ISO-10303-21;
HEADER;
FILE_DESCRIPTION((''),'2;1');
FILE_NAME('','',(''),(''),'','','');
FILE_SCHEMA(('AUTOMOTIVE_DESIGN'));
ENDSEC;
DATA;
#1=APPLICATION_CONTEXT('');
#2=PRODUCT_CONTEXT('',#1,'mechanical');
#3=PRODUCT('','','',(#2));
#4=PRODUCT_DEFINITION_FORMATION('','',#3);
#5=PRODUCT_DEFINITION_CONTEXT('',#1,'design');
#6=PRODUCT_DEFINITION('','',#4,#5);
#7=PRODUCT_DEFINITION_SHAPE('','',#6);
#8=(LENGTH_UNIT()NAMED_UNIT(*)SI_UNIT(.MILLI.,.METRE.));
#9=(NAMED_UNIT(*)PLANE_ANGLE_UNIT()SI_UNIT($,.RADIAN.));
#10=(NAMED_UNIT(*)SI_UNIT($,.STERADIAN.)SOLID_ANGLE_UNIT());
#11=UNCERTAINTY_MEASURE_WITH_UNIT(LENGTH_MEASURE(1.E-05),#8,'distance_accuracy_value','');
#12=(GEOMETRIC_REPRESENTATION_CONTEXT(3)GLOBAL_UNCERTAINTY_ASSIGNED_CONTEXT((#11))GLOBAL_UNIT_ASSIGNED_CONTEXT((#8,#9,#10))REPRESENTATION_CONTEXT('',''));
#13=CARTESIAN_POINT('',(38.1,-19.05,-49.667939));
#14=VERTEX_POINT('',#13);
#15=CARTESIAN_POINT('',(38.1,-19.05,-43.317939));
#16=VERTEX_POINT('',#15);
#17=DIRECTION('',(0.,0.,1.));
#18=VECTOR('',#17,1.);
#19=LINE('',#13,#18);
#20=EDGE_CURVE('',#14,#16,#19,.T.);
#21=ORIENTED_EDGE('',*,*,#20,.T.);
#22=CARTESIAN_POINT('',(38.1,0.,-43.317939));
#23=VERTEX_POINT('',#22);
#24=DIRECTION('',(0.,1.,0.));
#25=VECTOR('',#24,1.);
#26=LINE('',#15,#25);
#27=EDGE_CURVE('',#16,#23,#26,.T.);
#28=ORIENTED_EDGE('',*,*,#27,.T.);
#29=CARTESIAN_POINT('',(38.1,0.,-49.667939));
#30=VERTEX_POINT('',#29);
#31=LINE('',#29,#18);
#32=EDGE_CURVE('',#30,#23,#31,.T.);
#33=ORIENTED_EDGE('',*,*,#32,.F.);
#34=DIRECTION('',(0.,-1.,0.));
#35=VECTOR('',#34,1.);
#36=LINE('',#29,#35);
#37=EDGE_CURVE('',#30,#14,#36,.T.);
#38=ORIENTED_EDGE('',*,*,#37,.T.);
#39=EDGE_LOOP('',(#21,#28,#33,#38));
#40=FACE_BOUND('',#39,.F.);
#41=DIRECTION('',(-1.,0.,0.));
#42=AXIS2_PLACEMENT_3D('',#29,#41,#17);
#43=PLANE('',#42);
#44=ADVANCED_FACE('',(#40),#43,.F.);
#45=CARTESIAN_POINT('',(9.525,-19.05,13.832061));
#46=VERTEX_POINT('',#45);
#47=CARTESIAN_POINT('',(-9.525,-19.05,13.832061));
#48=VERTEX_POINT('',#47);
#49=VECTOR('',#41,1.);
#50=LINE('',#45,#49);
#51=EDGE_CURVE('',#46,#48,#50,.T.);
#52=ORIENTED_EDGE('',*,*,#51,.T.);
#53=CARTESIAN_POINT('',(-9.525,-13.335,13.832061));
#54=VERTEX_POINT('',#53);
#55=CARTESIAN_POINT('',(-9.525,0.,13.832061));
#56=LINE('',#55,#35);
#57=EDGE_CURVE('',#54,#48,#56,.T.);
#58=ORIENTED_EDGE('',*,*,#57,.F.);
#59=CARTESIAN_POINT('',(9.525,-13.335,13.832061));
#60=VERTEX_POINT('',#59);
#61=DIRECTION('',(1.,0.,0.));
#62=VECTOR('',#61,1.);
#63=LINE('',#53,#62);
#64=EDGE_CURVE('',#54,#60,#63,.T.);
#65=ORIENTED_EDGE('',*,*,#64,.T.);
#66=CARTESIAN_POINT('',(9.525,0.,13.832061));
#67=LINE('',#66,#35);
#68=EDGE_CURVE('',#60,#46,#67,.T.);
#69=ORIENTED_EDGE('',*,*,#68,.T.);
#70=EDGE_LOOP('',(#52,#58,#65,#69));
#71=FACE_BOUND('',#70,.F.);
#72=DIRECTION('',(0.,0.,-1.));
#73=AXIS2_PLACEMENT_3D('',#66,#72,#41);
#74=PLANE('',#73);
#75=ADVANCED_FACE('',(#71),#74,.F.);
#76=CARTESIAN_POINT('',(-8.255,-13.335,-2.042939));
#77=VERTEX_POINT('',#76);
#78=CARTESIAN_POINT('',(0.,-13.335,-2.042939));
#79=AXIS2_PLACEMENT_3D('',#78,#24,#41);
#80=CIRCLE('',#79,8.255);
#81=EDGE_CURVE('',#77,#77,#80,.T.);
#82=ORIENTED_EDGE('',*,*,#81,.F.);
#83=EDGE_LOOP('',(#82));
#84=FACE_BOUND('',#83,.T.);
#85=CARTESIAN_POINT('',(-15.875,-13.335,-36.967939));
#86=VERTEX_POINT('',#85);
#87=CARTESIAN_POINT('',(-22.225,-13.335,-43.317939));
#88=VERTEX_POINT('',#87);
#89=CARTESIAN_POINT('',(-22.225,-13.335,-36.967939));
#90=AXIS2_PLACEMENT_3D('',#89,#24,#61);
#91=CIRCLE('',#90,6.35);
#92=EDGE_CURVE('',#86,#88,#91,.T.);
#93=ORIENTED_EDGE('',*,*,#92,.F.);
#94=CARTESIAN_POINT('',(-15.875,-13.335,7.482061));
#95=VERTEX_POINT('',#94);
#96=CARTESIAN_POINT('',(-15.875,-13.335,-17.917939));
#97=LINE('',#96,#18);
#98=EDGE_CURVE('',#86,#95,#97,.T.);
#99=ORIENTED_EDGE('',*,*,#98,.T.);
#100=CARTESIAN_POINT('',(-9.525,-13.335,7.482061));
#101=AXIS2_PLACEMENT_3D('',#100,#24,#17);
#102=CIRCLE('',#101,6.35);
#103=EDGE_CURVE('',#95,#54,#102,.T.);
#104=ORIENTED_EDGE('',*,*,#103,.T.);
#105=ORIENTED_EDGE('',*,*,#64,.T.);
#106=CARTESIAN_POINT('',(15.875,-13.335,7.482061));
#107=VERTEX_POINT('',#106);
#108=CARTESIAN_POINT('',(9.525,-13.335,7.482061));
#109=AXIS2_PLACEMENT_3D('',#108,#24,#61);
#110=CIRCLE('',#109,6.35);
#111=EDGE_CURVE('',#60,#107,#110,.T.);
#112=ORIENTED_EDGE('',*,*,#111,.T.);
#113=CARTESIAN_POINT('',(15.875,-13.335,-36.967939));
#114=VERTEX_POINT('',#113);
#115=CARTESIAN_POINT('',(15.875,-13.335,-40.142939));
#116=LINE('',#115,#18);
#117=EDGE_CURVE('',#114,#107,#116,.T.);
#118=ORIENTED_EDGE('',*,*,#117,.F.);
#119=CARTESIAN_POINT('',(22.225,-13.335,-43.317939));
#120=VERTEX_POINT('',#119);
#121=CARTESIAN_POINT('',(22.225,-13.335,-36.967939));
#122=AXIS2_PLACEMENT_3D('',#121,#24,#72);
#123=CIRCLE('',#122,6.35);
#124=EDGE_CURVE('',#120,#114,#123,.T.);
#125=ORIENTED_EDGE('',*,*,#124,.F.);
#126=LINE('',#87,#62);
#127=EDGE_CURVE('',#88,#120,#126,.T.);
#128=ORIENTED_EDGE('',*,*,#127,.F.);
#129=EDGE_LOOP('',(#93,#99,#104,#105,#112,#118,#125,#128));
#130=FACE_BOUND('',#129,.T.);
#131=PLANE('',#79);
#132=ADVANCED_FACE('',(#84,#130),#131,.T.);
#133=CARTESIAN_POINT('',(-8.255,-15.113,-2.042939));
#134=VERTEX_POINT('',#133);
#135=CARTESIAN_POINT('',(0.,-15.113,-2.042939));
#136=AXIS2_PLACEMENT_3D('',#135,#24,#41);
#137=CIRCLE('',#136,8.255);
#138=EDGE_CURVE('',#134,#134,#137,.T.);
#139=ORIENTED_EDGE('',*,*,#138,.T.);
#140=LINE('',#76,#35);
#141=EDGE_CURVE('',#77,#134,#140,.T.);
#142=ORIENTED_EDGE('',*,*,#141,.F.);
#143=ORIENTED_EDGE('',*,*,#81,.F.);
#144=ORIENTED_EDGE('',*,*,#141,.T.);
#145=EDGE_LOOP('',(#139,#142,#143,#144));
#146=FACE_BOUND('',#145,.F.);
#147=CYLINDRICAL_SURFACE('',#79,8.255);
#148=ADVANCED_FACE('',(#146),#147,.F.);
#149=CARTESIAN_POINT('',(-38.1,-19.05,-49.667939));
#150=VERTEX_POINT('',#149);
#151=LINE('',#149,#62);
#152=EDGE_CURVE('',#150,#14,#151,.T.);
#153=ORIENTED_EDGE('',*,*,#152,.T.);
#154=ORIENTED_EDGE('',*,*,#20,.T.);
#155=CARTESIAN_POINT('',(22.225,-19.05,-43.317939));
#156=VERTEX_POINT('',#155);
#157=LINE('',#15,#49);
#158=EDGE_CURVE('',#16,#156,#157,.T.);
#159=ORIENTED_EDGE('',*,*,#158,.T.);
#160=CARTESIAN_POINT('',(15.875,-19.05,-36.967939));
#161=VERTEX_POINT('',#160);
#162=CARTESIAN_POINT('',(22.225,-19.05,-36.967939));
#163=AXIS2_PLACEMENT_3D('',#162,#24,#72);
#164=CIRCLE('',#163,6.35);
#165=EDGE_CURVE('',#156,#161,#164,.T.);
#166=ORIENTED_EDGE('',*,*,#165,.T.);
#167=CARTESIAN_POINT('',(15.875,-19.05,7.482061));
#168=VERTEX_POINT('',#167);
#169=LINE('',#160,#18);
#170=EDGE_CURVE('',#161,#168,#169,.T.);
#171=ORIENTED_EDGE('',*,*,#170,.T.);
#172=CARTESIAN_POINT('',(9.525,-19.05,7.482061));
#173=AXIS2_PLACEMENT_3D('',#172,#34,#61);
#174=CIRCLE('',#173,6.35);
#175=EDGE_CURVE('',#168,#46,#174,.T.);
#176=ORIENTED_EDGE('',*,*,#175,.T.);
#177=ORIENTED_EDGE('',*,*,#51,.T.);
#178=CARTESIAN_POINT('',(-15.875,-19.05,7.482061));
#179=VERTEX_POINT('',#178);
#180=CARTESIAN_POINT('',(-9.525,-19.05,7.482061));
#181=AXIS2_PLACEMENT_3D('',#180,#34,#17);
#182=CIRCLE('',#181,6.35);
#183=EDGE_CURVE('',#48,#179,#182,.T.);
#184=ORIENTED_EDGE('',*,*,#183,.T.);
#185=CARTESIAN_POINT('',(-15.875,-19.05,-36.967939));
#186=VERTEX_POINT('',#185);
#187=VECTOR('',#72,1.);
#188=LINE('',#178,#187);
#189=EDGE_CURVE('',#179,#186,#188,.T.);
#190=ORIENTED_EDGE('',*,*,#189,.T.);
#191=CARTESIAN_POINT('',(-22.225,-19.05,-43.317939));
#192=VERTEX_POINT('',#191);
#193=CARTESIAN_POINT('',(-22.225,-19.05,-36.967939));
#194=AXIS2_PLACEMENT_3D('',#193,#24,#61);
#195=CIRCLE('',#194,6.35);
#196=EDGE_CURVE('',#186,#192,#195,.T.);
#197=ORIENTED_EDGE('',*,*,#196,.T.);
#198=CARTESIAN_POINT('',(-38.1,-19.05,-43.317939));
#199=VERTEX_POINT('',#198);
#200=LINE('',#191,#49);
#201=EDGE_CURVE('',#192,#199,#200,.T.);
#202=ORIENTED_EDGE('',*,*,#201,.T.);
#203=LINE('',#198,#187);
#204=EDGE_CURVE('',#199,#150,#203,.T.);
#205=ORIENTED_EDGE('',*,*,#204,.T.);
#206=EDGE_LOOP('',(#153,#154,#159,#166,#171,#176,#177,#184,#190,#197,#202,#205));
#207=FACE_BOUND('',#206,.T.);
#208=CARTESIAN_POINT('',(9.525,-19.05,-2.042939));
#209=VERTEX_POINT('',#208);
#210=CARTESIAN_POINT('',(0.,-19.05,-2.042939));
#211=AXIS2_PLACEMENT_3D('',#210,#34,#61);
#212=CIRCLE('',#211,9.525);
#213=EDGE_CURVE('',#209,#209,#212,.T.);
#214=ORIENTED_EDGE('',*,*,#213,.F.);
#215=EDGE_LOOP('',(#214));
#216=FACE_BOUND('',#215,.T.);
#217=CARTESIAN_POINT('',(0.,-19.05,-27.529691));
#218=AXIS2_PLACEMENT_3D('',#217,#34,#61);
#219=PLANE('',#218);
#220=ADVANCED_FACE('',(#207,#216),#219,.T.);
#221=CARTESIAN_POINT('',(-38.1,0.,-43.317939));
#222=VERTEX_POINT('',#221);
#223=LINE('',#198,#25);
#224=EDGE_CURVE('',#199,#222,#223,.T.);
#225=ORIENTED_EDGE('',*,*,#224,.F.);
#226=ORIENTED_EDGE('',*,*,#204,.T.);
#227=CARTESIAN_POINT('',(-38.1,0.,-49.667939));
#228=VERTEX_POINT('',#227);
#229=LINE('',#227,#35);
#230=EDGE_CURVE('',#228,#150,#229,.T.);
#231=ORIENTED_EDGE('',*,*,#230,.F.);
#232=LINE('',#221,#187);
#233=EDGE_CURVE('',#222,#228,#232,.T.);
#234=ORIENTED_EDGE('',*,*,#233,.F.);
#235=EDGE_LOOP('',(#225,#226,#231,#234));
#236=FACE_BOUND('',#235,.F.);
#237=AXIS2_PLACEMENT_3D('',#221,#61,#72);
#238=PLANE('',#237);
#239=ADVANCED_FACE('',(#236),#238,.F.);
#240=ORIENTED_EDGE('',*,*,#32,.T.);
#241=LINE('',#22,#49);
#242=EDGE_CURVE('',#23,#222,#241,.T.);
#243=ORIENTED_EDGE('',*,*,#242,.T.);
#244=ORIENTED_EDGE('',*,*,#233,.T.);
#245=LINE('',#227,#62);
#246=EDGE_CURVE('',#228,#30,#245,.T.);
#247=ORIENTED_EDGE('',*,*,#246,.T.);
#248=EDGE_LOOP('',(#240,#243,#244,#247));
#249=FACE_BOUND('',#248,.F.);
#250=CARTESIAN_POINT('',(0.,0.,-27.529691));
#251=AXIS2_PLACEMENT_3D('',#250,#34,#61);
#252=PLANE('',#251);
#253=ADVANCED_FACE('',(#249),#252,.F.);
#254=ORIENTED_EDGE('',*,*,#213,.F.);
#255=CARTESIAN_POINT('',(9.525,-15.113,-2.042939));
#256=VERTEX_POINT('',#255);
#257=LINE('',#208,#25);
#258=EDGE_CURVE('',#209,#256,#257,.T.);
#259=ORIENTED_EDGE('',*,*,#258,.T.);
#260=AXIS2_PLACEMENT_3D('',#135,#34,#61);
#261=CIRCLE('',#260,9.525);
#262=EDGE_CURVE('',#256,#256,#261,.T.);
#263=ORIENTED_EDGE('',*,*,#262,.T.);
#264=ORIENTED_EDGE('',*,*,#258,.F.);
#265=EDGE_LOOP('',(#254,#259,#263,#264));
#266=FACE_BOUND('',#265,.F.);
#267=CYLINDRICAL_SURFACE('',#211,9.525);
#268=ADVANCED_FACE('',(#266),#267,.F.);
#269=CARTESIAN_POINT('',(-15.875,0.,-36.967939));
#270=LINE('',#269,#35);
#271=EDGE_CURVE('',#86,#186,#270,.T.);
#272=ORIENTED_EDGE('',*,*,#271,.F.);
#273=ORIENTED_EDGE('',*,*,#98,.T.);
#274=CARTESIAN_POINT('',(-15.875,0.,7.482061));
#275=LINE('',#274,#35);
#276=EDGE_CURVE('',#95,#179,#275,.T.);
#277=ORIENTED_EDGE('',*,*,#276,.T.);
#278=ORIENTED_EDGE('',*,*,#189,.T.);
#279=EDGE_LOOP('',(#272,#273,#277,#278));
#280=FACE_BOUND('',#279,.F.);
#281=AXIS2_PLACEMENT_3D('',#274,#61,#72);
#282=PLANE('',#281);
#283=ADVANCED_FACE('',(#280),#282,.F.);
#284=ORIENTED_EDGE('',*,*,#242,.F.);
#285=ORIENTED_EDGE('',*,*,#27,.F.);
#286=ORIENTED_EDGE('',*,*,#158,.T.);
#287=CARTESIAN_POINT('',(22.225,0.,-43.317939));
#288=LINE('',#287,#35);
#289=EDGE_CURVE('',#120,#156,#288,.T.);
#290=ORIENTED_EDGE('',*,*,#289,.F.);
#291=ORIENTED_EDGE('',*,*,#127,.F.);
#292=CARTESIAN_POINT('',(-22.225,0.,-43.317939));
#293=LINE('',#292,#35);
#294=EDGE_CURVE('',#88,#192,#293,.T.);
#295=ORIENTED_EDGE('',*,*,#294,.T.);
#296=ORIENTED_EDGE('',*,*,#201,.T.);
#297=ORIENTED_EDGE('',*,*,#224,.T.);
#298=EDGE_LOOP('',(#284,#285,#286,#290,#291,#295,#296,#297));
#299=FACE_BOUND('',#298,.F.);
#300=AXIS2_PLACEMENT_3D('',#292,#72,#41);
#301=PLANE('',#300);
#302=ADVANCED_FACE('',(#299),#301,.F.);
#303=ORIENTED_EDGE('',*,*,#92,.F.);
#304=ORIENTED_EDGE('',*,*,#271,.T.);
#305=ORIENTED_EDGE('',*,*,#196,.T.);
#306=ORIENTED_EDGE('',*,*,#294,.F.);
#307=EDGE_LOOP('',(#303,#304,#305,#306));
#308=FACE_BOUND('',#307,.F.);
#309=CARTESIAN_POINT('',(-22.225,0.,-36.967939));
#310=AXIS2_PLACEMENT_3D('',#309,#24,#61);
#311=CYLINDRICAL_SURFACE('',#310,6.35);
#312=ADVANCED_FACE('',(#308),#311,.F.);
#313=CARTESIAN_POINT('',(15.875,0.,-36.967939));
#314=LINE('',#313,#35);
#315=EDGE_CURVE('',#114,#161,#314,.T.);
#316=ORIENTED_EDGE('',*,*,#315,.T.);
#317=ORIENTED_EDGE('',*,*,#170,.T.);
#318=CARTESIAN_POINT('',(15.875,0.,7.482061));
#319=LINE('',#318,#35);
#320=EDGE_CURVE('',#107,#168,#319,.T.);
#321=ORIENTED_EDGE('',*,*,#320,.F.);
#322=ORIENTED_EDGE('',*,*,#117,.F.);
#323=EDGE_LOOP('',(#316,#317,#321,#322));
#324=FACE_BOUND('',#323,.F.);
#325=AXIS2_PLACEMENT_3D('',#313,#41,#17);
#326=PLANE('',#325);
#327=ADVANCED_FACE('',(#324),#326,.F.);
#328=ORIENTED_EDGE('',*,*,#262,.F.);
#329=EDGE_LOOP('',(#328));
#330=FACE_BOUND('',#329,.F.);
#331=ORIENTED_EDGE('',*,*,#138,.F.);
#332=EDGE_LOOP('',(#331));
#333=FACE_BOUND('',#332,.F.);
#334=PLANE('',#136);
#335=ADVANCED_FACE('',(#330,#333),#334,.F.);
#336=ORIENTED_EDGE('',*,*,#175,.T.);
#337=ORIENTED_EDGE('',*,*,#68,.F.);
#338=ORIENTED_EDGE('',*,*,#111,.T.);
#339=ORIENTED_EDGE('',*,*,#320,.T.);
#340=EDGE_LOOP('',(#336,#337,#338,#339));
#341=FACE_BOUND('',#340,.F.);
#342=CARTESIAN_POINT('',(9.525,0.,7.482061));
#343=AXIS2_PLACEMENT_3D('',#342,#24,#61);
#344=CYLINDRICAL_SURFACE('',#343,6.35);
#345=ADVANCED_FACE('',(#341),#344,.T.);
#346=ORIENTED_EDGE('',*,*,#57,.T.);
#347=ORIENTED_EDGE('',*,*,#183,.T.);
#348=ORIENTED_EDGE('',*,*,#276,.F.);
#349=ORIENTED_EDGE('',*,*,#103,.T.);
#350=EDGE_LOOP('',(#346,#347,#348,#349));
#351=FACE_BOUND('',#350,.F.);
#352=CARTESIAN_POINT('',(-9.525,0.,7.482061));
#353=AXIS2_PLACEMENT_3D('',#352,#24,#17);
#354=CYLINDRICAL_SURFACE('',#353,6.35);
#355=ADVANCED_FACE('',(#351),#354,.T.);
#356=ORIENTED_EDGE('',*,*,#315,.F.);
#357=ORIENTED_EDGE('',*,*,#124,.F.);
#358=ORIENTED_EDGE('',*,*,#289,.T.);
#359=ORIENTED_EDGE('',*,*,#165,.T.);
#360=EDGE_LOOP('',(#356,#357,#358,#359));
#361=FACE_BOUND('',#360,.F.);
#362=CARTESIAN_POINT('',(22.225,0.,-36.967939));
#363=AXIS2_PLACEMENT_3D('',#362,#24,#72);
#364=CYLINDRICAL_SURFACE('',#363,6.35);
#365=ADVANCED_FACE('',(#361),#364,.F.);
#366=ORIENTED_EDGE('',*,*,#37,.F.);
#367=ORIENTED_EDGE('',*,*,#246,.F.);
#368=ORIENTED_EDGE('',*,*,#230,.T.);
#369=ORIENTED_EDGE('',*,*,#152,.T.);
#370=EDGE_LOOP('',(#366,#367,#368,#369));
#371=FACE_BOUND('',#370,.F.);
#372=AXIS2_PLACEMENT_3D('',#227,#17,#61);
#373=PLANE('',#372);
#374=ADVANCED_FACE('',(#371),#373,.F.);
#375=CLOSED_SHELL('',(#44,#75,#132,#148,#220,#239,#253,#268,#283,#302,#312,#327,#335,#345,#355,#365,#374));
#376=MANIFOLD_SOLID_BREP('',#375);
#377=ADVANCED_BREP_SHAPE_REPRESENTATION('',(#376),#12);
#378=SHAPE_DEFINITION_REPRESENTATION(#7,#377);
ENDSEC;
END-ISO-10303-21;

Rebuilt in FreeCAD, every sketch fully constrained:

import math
import FreeCAD as App
import Part
import Sketcher
Q = App.Units.Quantity


def add_polygon(sketch, points):
    """Adds a closed chain of lines whose ends are joined by coincident constraints."""
    first, n = sketch.GeometryCount, len(points)
    for a, b in zip(points, points[1:] + points[:1]):
        sketch.addGeometry(Part.LineSegment(App.Vector(*a, 0), App.Vector(*b, 0)), False)
    for i in range(n):
        sketch.addConstraint(Sketcher.Constraint("Coincident", first + i, 2, first + (i + 1) % n, 1))

doc = App.newDocument("Part")
body = doc.addObject("PartDesign::Body", "Body")

sketch1 = body.newObject("Sketcher::SketchObject", "Sketch")
sketch1.AttachmentSupport = (doc.getObject("XZ_Plane"), [""])
sketch1.MapMode = "FlatFace"
sketch1.addGeometry(Part.LineSegment(App.Vector(-38.1, -43.317939, 0), App.Vector(-38.1, -49.667939, 0)), False)
sketch1.addGeometry(Part.LineSegment(App.Vector(-38.1, -49.667939, 0), App.Vector(38.1, -49.667939, 0)), False)
sketch1.addGeometry(Part.LineSegment(App.Vector(38.1, -49.667939, 0), App.Vector(38.1, -43.317939, 0)), False)
sketch1.addGeometry(Part.LineSegment(App.Vector(38.1, -43.317939, 0), App.Vector(22.225, -43.317939, 0)), False)
sketch1.addGeometry(Part.ArcOfCircle(Part.Circle(App.Vector(22.225, -36.967939, 0), App.Vector(0, 0, 1), 6.35), math.radians(180), math.radians(270)), False)
sketch1.addGeometry(Part.LineSegment(App.Vector(15.875, -36.967939, 0), App.Vector(15.875, 7.482061, 0)), False)
sketch1.addGeometry(Part.ArcOfCircle(Part.Circle(App.Vector(9.525, 7.482061, 0), App.Vector(0, 0, 1), 6.35), math.radians(0), math.radians(90)), False)
sketch1.addGeometry(Part.LineSegment(App.Vector(9.525, 13.832061, 0), App.Vector(-9.525, 13.832061, 0)), False)
sketch1.addGeometry(Part.ArcOfCircle(Part.Circle(App.Vector(-9.525, 7.482061, 0), App.Vector(0, 0, 1), 6.35), math.radians(90), math.radians(180)), False)
sketch1.addGeometry(Part.LineSegment(App.Vector(-15.875, 7.482061, 0), App.Vector(-15.875, -36.967939, 0)), False)
sketch1.addGeometry(Part.ArcOfCircle(Part.Circle(App.Vector(-22.225, -36.967939, 0), App.Vector(0, 0, 1), 6.35), math.radians(-90), math.radians(0)), False)
sketch1.addGeometry(Part.LineSegment(App.Vector(-22.225, -43.317939, 0), App.Vector(-38.1, -43.317939, 0)), False)
sketch1.addConstraint(Sketcher.Constraint("Coincident", 0, 2, 1, 1))
sketch1.addConstraint(Sketcher.Constraint("Coincident", 1, 2, 2, 1))
sketch1.addConstraint(Sketcher.Constraint("Coincident", 2, 2, 3, 1))
sketch1.addConstraint(Sketcher.Constraint("Tangent", 3, 2, 4, 2))
sketch1.addConstraint(Sketcher.Constraint("Tangent", 4, 1, 5, 1))
sketch1.addConstraint(Sketcher.Constraint("Tangent", 5, 2, 6, 1))
sketch1.addConstraint(Sketcher.Constraint("Tangent", 6, 2, 7, 1))
sketch1.addConstraint(Sketcher.Constraint("Tangent", 7, 2, 8, 1))
sketch1.addConstraint(Sketcher.Constraint("Tangent", 8, 2, 9, 1))
sketch1.addConstraint(Sketcher.Constraint("Tangent", 9, 2, 10, 2))
sketch1.addConstraint(Sketcher.Constraint("Tangent", 10, 1, 11, 1))
sketch1.addConstraint(Sketcher.Constraint("Coincident", 11, 2, 0, 1))
sketch1.addConstraint(Sketcher.Constraint("Vertical", 0))
sketch1.addConstraint(Sketcher.Constraint("Horizontal", 1))
sketch1.addConstraint(Sketcher.Constraint("Vertical", 2))
sketch1.addConstraint(Sketcher.Constraint("Horizontal", 3))
sketch1.addConstraint(Sketcher.Constraint("Vertical", 5))
sketch1.addConstraint(Sketcher.Constraint("Horizontal", 7))
sketch1.addConstraint(Sketcher.Constraint("Vertical", 9))
sketch1.addConstraint(Sketcher.Constraint("Horizontal", 11))
sketch1.addConstraint(Sketcher.Constraint("Equal", 4, 6))
sketch1.addConstraint(Sketcher.Constraint("Equal", 6, 8))
sketch1.addConstraint(Sketcher.Constraint("Equal", 8, 10))
sketch1.addConstraint(Sketcher.Constraint("Symmetric", 4, 3, 10, 3, -2))
sketch1.addConstraint(Sketcher.Constraint("Equal", 3, 11))
sketch1.addConstraint(Sketcher.Constraint("DistanceX", 1, 1, 1, 2, Q("3 in")))
sketch1.addConstraint(Sketcher.Constraint("Radius", 4, Q("0.25 in")))
sketch1.addConstraint(Sketcher.Constraint("DistanceY", 2, 2, 6, 3, Q("2 in")))
sketch1.addConstraint(Sketcher.Constraint("DistanceX", 8, 3, 5, 2, Q("1 in")))
sketch1.addConstraint(Sketcher.Constraint("DistanceY", 0, 2, 0, 1, Q("0.25 in")))
sketch1.addConstraint(Sketcher.Constraint("DistanceY", 4, 3, -1, 1, Q("36.967939 mm")))
pad1 = body.newObject("PartDesign::Pad", "Pad")
pad1.Profile = sketch1
pad1.Length = Q("0.75 in")

sketch2 = body.newObject("Sketcher::SketchObject", "Sketch001")
sketch2.AttachmentSupport = (doc.getObject("YZ_Plane"), [""])
sketch2.MapMode = "FlatFace"
add_polygon(sketch2, [(-13.335, 13.832061), (-13.335, -43.317939), (12.827, -43.317939), (12.827, 13.832061)])
sketch2.addConstraint(Sketcher.Constraint("Vertical", 0))
sketch2.addConstraint(Sketcher.Constraint("Horizontal", 1))
sketch2.addConstraint(Sketcher.Constraint("Vertical", 2))
sketch2.addConstraint(Sketcher.Constraint("Horizontal", 3))
sketch2.addConstraint(Sketcher.Constraint("DistanceX", 1, 1, 1, 2, Q("1.03 in")))
sketch2.addConstraint(Sketcher.Constraint("DistanceY", 0, 2, 0, 1, Q("2.25 in")))
sketch2.addConstraint(Sketcher.Constraint("DistanceX", 0, 2, -1, 1, Q("0.525 in")))
sketch2.addConstraint(Sketcher.Constraint("DistanceY", 0, 2, -1, 1, Q("43.317939 mm")))
pocket1 = body.newObject("PartDesign::Pocket", "Pocket")
pocket1.Profile = sketch2
pocket1.Type = "ThroughAll"
pocket1.Midplane = True

sketch3 = body.newObject("Sketcher::SketchObject", "Sketch002")
sketch3.AttachmentSupport = (doc.getObject("XZ_Plane"), [""])
sketch3.MapMode = "FlatFace"
sketch3.AttachmentOffset = App.Placement(App.Vector(0, 0, 0.75 * 25.4), App.Rotation())
sketch3.addGeometry(Part.Circle(App.Vector(0, -2.042939, 0), App.Vector(0, 0, 1), 9.525), False)
sketch3.addConstraint(Sketcher.Constraint("PointOnObject", 0, 3, -2))
sketch3.addConstraint(Sketcher.Constraint("Diameter", 0, Q("0.75 in")))
sketch3.addConstraint(Sketcher.Constraint("DistanceY", 0, 3, -1, 1, Q("2.042939 mm")))
pocket2 = body.newObject("PartDesign::Pocket", "Pocket001")
pocket2.Profile = sketch3
pocket2.Type = "ThroughAll"

sketch4 = body.newObject("Sketcher::SketchObject", "Sketch003")
sketch4.AttachmentSupport = (doc.getObject("XZ_Plane"), [""])
sketch4.MapMode = "FlatFace"
sketch4.AttachmentOffset = App.Placement(App.Vector(0, 0, 0.525 * 25.4), App.Rotation())
sketch4.addGeometry(Part.Circle(App.Vector(0, -2.042939, 0), App.Vector(0, 0, 1), 9.525), False)
sketch4.addGeometry(Part.Circle(App.Vector(0, -2.042939, 0), App.Vector(0, 0, 1), 8.255), False)
sketch4.addConstraint(Sketcher.Constraint("Coincident", 1, 3, 0, 3))
sketch4.addConstraint(Sketcher.Constraint("PointOnObject", 0, 3, -2))
sketch4.addConstraint(Sketcher.Constraint("Diameter", 0, Q("0.75 in")))
sketch4.addConstraint(Sketcher.Constraint("Diameter", 1, Q("0.65 in")))
sketch4.addConstraint(Sketcher.Constraint("DistanceY", 0, 3, -1, 1, Q("2.042939 mm")))
pad2 = body.newObject("PartDesign::Pad", "Pad001")
pad2.Profile = sketch4
pad2.Length = Q("0.07 in")

doc.recompute()
